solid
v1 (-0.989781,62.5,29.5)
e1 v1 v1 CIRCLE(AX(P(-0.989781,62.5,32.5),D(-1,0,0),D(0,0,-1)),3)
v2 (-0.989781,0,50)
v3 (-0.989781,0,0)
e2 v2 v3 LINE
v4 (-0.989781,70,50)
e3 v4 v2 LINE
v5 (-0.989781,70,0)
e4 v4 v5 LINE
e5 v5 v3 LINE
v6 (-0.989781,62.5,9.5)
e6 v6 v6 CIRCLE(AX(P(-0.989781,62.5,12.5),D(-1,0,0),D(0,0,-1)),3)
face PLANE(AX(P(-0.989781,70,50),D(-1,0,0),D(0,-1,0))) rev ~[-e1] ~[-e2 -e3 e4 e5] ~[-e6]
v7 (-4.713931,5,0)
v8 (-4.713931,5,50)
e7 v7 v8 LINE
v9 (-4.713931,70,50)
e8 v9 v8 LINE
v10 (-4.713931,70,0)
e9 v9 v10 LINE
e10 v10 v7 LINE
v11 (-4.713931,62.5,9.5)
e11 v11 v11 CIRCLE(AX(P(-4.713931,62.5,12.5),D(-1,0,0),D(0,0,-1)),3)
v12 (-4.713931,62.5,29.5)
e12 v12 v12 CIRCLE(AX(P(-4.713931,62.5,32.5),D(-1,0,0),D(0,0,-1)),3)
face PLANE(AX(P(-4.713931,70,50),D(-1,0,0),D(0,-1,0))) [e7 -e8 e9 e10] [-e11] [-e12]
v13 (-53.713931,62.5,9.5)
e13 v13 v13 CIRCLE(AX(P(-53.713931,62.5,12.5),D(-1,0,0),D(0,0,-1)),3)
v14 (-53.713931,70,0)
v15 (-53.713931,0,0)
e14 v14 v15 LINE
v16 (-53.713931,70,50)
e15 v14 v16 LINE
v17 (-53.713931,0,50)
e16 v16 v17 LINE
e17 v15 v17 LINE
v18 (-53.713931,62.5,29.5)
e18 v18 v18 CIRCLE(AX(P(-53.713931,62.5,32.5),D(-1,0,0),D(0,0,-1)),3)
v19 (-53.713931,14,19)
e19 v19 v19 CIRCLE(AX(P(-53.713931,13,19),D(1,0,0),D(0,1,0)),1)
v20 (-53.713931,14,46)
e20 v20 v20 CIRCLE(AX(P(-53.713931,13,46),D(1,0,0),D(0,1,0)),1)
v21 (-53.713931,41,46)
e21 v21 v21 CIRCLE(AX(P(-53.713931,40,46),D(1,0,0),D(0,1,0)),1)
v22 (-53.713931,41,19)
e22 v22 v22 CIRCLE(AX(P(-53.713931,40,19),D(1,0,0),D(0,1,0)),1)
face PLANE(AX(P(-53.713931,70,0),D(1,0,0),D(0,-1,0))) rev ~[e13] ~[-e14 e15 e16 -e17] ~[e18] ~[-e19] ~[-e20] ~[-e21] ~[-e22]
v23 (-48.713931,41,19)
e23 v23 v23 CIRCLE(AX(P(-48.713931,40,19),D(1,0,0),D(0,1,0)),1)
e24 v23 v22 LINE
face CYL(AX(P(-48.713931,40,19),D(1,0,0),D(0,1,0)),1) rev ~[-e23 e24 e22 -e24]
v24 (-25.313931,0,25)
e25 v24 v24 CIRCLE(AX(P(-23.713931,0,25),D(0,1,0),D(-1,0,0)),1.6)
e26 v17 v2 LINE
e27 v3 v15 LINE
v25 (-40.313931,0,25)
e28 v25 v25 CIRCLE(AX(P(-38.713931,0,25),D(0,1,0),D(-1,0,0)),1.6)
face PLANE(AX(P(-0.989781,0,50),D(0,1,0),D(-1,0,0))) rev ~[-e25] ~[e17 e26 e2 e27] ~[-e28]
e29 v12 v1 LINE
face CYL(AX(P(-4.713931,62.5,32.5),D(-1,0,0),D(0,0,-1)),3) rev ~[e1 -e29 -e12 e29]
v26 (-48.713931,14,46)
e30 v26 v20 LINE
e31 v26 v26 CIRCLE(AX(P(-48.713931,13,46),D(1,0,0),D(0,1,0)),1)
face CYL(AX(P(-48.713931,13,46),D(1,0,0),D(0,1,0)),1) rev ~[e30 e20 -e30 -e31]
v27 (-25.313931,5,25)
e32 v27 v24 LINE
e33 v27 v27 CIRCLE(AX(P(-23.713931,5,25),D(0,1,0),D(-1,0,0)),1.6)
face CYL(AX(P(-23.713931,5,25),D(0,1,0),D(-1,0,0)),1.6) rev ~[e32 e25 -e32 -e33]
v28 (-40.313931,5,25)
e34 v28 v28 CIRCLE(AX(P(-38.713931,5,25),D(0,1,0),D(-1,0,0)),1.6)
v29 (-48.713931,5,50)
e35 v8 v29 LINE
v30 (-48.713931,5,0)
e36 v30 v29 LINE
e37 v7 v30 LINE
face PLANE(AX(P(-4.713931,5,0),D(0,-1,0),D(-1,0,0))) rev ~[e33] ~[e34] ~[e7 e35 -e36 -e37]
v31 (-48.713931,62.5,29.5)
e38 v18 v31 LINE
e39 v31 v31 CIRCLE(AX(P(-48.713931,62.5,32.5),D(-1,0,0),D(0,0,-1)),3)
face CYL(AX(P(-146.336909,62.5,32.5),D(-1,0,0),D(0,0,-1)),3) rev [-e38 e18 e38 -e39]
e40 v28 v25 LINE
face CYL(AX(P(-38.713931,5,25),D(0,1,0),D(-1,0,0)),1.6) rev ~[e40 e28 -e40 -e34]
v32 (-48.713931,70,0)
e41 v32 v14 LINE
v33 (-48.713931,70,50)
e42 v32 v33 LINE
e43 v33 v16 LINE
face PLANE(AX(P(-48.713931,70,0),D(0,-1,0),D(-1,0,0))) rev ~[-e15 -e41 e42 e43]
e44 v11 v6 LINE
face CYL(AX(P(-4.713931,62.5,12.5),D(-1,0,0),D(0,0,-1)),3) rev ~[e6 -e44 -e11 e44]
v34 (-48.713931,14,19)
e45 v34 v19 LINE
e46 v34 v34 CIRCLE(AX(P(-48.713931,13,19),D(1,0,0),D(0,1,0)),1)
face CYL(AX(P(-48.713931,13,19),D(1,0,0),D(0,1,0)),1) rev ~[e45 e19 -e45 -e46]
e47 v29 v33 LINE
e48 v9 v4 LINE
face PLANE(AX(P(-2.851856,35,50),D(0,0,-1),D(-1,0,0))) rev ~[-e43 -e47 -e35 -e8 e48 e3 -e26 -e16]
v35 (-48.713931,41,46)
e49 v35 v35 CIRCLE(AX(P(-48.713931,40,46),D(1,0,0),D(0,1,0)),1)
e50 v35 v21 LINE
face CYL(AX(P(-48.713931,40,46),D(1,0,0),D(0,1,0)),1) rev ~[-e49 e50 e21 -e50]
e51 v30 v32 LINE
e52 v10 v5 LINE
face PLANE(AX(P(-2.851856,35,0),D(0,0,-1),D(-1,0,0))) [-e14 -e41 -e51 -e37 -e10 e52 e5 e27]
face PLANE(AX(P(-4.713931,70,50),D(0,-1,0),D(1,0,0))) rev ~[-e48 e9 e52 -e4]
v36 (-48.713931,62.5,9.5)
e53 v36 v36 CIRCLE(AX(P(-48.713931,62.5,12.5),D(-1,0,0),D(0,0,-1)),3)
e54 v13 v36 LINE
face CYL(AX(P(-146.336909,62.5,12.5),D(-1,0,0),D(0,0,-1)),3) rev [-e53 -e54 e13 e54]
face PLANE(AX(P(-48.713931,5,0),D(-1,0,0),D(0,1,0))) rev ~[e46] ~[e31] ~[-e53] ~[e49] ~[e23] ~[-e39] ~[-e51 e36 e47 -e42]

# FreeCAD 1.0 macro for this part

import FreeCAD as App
import Part
import Sketcher
from FreeCAD import Vector
Q = App.Units.Quantity


def add_polygon(sketch, points):
    """Adds a closed chain of lines whose ends are joined by coincident constraints."""
    first, n = sketch.GeometryCount, len(points)
    for a, b in zip(points, points[1:] + points[:1]):
        sketch.addGeometry(Part.LineSegment(App.Vector(*a, 0), App.Vector(*b, 0)), False)
    for i in range(n):
        sketch.addConstraint(Sketcher.Constraint("Coincident", first + i, 2, first + (i + 1) % n, 1))

doc = App.newDocument("Part")
body = doc.addObject("PartDesign::Body", "Body")

# Sketch on XY plane
sketch1 = doc.addObject("Sketcher::SketchObject", "Sketch")
body.addObject(sketch1)
sketch1.AttachmentSupport = (doc.XY_Plane, [""])
sketch1.MapMode = "FlatFace"
add_polygon(sketch1, [(-53.713931, 70), (-53.713931, 0), (-4.713931, 0), (-4.713931, 5), (-48.713931, 5), (-48.713931, 70)])  # lines 0-5
sketch1.addConstraint([
    Sketcher.Constraint("Vertical", 0),
    Sketcher.Constraint("Horizontal", 1),
    Sketcher.Constraint("Vertical", 2),
    Sketcher.Constraint("Horizontal", 3),
    Sketcher.Constraint("Vertical", 4),
    Sketcher.Constraint("Horizontal", 5),
    Sketcher.Constraint("PointOnObject", 0, 2, -1),
    Sketcher.Constraint("Equal", 5, 2),
    Sketcher.Constraint("DistanceX", 1, 1, 1, 2, Q("49 mm")),
    Sketcher.Constraint("DistanceX", 3, 2, 3, 1, Q("44 mm")),
    Sketcher.Constraint("DistanceY", 0, 2, 0, 1, Q("70 mm")),
    Sketcher.Constraint("DistanceX", 0, 2, -1, 1, Q("53.713931 mm")),
])
pad1 = doc.addObject("PartDesign::Pad", "Pad")
body.addObject(pad1)
pad1.Profile = sketch1
pad1.Length = 50

# Sketch on YZ plane
sketch2 = doc.addObject("Sketcher::SketchObject", "Sketch001")
body.addObject(sketch2)
sketch2.AttachmentSupport = (doc.YZ_Plane, [""])
sketch2.MapMode = "FlatFace"
sketch2.AttachmentOffset = App.Placement(Vector(0, 0, -48.713931), App.Rotation())
sketch2.addGeometry([
    Part.Circle(Vector(40, 46, 0), Vector(0, 0, 1), 1),
    Part.Circle(Vector(40, 19, 0), Vector(0, 0, 1), 1),
    Part.Circle(Vector(13, 19, 0), Vector(0, 0, 1), 1),
    Part.Circle(Vector(13, 46, 0), Vector(0, 0, 1), 1),
], False)
sketch2.addConstraint([
    Sketcher.Constraint("Equal", 0, 1),
    Sketcher.Constraint("Equal", 1, 2),
    Sketcher.Constraint("Equal", 2, 3),
    Sketcher.Constraint("Horizontal", 1, 3, 2, 3),
    Sketcher.Constraint("Horizontal", 0, 3, 3, 3),
    Sketcher.Constraint("Vertical", 0, 3, 1, 3),
    Sketcher.Constraint("Vertical", 2, 3, 3, 3),
    Sketcher.Constraint("Diameter", 0, Q("2 mm")),
    Sketcher.Constraint("DistanceX", -1, 1, 0, 3, Q("40 mm")),
    Sketcher.Constraint("DistanceY", -1, 1, 0, 3, Q("46 mm")),
    Sketcher.Constraint("DistanceY", -1, 1, 1, 3, Q("19 mm")),
    Sketcher.Constraint("DistanceX", -1, 1, 2, 3, Q("13 mm")),
])
pocket1 = doc.addObject("PartDesign::Pocket", "Pocket")
body.addObject(pocket1)
pocket1.Profile = sketch2
pocket1.Type = "ThroughAll"

# Sketch on XZ plane
sketch3 = doc.addObject("Sketcher::SketchObject", "Sketch002")
body.addObject(sketch3)
sketch3.AttachmentSupport = (doc.XZ_Plane, [""])
sketch3.MapMode = "FlatFace"
sketch3.AttachmentOffset = App.Placement(Vector(0, 0, -5), App.Rotation())
sketch3.addGeometry([
    Part.Circle(Vector(-38.713931, 25, 0), Vector(0, 0, 1), 1.6),
    Part.Circle(Vector(-23.713931, 25, 0), Vector(0, 0, 1), 1.6),
], False)
sketch3.addConstraint([
    Sketcher.Constraint("Equal", 0, 1),
    Sketcher.Constraint("Horizontal", 0, 3, 1, 3),
    Sketcher.Constraint("Diameter", 0, Q("3.2 mm")),
    Sketcher.Constraint("DistanceY", -1, 1, 0, 3, Q("25 mm")),
    Sketcher.Constraint("DistanceX", 0, 3, 1, 3, Q("15 mm")),
    Sketcher.Constraint("DistanceX", 0, 3, -1, 1, Q("38.713931 mm")),
])
pocket2 = doc.addObject("PartDesign::Pocket", "Pocket001")
body.addObject(pocket2)
pocket2.Profile = sketch3
pocket2.Type = "ThroughAll"
pocket2.Reversed = True

# Sketch on YZ plane
sketch4 = doc.addObject("Sketcher::SketchObject", "Sketch003")
body.addObject(sketch4)
sketch4.AttachmentSupport = (doc.YZ_Plane, [""])
sketch4.MapMode = "FlatFace"
sketch4.AttachmentOffset = App.Placement(Vector(0, 0, -48.713931), App.Rotation())
sketch4.addGeometry([
    Part.Circle(Vector(62.5, 32.5, 0), Vector(0, 0, 1), 3),
    Part.Circle(Vector(62.5, 12.5, 0), Vector(0, 0, 1), 3),
], False)
sketch4.addConstraint([
    Sketcher.Constraint("Equal", 0, 1),
    Sketcher.Constraint("Vertical", 0, 3, 1, 3),
    Sketcher.Constraint("Diameter", 0, Q("6 mm")),
    Sketcher.Constraint("DistanceY", 1, 3, 0, 3, Q("20 mm")),
    Sketcher.Constraint("DistanceX", -1, 1, 0, 3, Q("62.5 mm")),
    Sketcher.Constraint("DistanceY", -1, 1, 0, 3, Q("32.5 mm")),
])
pocket3 = doc.addObject("PartDesign::Pocket", "Pocket002")
body.addObject(pocket3)
pocket3.Profile = sketch4
pocket3.Type = "ThroughAll"
pocket3.Midplane = True

# Sketch on XY plane
sketch5 = doc.addObject("Sketcher::SketchObject", "Sketch004")
body.addObject(sketch5)
sketch5.AttachmentSupport = (doc.XY_Plane, [""])
sketch5.MapMode = "FlatFace"
sketch5.AttachmentOffset = App.Placement(Vector(0, 0, 50), App.Rotation())
add_polygon(sketch5, [(-4.713931, 70), (-4.713931, 0), (-0.989781, 0), (-0.989781, 70)])  # lines 0-3
sketch5.addConstraint([
    Sketcher.Constraint("Vertical", 0),
    Sketcher.Constraint("Horizontal", 1),
    Sketcher.Constraint("Vertical", 2),
    Sketcher.Constraint("Horizontal", 3),
    Sketcher.Constraint("PointOnObject", 0, 2, -1),
    Sketcher.Constraint("DistanceY", 0, 2, 0, 1, Q("70 mm")),
    Sketcher.Constraint("DistanceX", 1, 1, 1, 2, Q("3.72415 mm")),
    Sketcher.Constraint("DistanceX", 0, 2, -1, 1, Q("4.713931 mm")),
])
pad2 = doc.addObject("PartDesign::Pad", "Pad001")
body.addObject(pad2)
pad2.Profile = sketch5
pad2.Length = 50
pad2.Reversed = True

# Sketch on YZ plane
sketch6 = doc.addObject("Sketcher::SketchObject", "Sketch005")
body.addObject(sketch6)
sketch6.AttachmentSupport = (doc.YZ_Plane, [""])
sketch6.MapMode = "FlatFace"
sketch6.AttachmentOffset = App.Placement(Vector(0, 0, -4.713931), App.Rotation())
sketch6.addGeometry([
    Part.Circle(Vector(62.5, 12.5, 0), Vector(0, 0, 1), 3),
    Part.Circle(Vector(62.5, 32.5, 0), Vector(0, 0, 1), 3),
], False)
sketch6.addConstraint([
    Sketcher.Constraint("Equal", 0, 1),
    Sketcher.Constraint("Vertical", 0, 3, 1, 3),
    Sketcher.Constraint("Diameter", 0, Q("6 mm")),
    Sketcher.Constraint("DistanceY", 0, 3, 1, 3, Q("20 mm")),
    Sketcher.Constraint("DistanceX", -1, 1, 0, 3, Q("62.5 mm")),
    Sketcher.Constraint("DistanceY", -1, 1, 0, 3, Q("12.5 mm")),
])
pocket4 = doc.addObject("PartDesign::Pocket", "Pocket003")
body.addObject(pocket4)
pocket4.Profile = sketch6
pocket4.Type = "ThroughAll"
pocket4.Reversed = True

doc.recompute()
